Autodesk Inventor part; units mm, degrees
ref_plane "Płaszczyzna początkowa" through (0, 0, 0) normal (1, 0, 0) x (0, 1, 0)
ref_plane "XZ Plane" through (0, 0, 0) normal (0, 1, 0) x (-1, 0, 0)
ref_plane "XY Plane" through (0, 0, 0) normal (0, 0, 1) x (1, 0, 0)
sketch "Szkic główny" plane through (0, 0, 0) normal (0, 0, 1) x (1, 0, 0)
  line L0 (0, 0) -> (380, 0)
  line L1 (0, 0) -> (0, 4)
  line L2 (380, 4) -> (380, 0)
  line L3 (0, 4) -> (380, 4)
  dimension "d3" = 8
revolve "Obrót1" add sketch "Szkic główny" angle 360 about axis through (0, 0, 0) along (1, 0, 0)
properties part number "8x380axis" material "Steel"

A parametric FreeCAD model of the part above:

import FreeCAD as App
import Part
import Sketcher

V = App.Vector
Q = App.Units.Quantity

doc = App.newDocument("Part")
body = doc.addObject("PartDesign::Body", "Body")

# Sketch on XY plane
sketch1 = body.newObject("Sketcher::SketchObject", "Sketch")
sketch1.AttachmentSupport = (doc.getObject("XY_Plane"), [""])
sketch1.MapMode = "FlatFace"
sketch1.addGeometry([
    Part.LineSegment(V(0, 4, 0), V(0, 0, 0)),
    Part.LineSegment(V(0, 0, 0), V(380, 0, 0)),
    Part.LineSegment(V(380, 0, 0), V(380, 4, 0)),
    Part.LineSegment(V(380, 4, 0), V(0, 4, 0)),
], False)
sketch1.addConstraint([
    Sketcher.Constraint("Coincident", 0, 2, 1, 1),
    Sketcher.Constraint("Coincident", 1, 2, 2, 1),
    Sketcher.Constraint("Coincident", 2, 2, 3, 1),
    Sketcher.Constraint("Coincident", 3, 2, 0, 1),
    Sketcher.Constraint("Vertical", 0),
    Sketcher.Constraint("Horizontal", 1),
    Sketcher.Constraint("Vertical", 2),
    Sketcher.Constraint("Horizontal", 3),
    Sketcher.Constraint("Coincident", 0, 2, -1, 1),
    Sketcher.Constraint("DistanceX", 1, 1, 1, 2, Q("380 mm")),
    Sketcher.Constraint("DistanceY", 0, 2, 0, 1, Q("4 mm")),
])
revolution = body.newObject("PartDesign::Revolution", "Revolution")
revolution.Profile = sketch1
revolution.ReferenceAxis = (sketch1, ["H_Axis"])
revolution.Angle = 360

doc.recompute()
